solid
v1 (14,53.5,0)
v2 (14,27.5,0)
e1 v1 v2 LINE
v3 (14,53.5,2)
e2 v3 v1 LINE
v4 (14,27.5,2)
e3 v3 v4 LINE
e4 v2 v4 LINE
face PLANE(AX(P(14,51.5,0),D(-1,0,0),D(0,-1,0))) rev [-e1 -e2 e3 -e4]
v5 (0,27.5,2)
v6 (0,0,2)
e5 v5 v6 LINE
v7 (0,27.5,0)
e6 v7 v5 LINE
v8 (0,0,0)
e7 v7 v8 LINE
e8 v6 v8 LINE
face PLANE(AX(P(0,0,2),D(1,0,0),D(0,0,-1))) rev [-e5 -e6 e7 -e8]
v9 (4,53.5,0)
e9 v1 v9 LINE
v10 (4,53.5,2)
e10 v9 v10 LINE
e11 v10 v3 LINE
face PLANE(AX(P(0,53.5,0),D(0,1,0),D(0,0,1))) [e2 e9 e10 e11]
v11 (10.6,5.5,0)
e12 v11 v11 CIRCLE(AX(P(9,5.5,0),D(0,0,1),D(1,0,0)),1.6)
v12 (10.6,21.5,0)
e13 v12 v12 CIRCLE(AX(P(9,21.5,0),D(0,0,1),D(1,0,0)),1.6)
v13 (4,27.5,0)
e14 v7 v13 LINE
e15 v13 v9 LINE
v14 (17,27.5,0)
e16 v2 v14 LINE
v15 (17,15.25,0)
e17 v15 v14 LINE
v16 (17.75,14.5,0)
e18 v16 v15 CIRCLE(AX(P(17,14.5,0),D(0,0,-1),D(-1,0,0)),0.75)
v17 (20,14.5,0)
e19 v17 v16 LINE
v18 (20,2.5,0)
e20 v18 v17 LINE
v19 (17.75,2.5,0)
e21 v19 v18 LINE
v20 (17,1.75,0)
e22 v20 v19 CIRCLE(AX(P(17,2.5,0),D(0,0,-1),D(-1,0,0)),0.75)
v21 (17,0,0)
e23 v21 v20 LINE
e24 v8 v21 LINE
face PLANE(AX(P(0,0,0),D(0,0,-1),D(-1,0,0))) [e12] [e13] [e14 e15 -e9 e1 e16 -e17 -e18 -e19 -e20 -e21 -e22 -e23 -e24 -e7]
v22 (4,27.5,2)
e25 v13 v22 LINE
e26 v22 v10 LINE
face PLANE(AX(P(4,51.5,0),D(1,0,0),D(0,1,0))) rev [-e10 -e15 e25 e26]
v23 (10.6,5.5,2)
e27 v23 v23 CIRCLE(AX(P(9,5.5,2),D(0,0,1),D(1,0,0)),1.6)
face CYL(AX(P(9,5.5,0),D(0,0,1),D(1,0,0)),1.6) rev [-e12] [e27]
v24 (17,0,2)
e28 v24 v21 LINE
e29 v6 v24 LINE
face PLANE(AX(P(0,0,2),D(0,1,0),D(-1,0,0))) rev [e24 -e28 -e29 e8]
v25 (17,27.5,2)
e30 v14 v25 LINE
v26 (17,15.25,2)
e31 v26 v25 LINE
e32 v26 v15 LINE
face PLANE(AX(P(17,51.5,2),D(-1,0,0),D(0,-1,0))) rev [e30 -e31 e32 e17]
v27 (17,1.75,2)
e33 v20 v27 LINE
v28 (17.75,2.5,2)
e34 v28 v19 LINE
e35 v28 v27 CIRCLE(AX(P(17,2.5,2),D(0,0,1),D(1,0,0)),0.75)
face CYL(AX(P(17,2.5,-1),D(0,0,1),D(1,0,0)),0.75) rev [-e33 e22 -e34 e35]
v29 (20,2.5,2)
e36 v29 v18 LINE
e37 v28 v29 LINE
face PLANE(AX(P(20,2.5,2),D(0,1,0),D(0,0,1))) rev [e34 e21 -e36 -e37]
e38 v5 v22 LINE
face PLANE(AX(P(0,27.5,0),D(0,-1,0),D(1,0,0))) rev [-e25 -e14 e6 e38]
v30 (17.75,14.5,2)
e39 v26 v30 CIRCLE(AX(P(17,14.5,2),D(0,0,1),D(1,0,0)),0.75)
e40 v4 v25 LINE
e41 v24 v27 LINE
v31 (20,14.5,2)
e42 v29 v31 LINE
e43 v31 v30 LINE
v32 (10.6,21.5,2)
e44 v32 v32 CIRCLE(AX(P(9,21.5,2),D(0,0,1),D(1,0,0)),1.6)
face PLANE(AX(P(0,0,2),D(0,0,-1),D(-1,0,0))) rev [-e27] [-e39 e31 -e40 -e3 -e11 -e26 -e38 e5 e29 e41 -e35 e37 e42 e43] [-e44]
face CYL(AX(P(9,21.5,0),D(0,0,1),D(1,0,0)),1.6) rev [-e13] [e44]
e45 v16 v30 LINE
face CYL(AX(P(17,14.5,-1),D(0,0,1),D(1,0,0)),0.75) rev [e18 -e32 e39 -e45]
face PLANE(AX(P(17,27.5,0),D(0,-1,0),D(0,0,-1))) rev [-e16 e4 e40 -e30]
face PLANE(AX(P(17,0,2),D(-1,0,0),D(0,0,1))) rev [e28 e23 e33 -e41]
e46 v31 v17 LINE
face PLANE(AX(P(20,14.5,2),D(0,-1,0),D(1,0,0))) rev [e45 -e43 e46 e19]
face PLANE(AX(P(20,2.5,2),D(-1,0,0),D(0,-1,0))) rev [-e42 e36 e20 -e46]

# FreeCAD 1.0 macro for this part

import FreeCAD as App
import Part
import Sketcher

V = App.Vector

doc = App.newDocument("Part")
body = doc.addObject("PartDesign::Body", "Body")

# Sketch on XY plane
sketch1 = doc.addObject("Sketcher::SketchObject", "Sketch")
body.addObject(sketch1)
sketch1.AttachmentSupport = (doc.XY_Plane, [""])
sketch1.MapMode = "FlatFace"
sketch1.addGeometry(Part.LineSegment(V(0, 0, 0), V(17, 0, 0)), False)
sketch1.addGeometry(Part.LineSegment(V(17, 0, 0), V(17, 2.5, 0)), False)
sketch1.addGeometry(Part.LineSegment(V(17, 2.5, 0), V(20, 2.5, 0)), False)
sketch1.addGeometry(Part.LineSegment(V(20, 2.5, 0), V(20, 14.5, 0)), False)
sketch1.addGeometry(Part.LineSegment(V(20, 14.5, 0), V(17, 14.5, 0)), False)
sketch1.addGeometry(Part.LineSegment(V(17, 14.5, 0), V(17, 51.5, 0)), False)
sketch1.addGeometry(Part.LineSegment(V(17, 51.5, 0), V(0, 51.5, 0)), False)
sketch1.addGeometry(Part.LineSegment(V(0, 51.5, 0), V(0, 0, 0)), False)
sketch1.addConstraint(Sketcher.Constraint("Coincident", 0, 2, 1, 1))
sketch1.addConstraint(Sketcher.Constraint("Coincident", 1, 2, 2, 1))
sketch1.addConstraint(Sketcher.Constraint("Coincident", 2, 2, 3, 1))
sketch1.addConstraint(Sketcher.Constraint("Coincident", 3, 2, 4, 1))
sketch1.addConstraint(Sketcher.Constraint("Coincident", 4, 2, 5, 1))
sketch1.addConstraint(Sketcher.Constraint("Coincident", 5, 2, 6, 1))
sketch1.addConstraint(Sketcher.Constraint("Coincident", 6, 2, 7, 1))
sketch1.addConstraint(Sketcher.Constraint("Coincident", 7, 2, 0, 1))
sketch1.addConstraint(Sketcher.Constraint("Horizontal", 0))
sketch1.addConstraint(Sketcher.Constraint("Vertical", 1))
sketch1.addConstraint(Sketcher.Constraint("Horizontal", 2))
sketch1.addConstraint(Sketcher.Constraint("Vertical", 3))
sketch1.addConstraint(Sketcher.Constraint("Horizontal", 4))
sketch1.addConstraint(Sketcher.Constraint("Vertical", 5))
sketch1.addConstraint(Sketcher.Constraint("Horizontal", 6))
sketch1.addConstraint(Sketcher.Constraint("Vertical", 7))
sketch1.addConstraint(Sketcher.Constraint("Coincident", 7, 2, -1, 1))
sketch1.addConstraint(Sketcher.Constraint("Vertical", 1, 2, 4, 2))
sketch1.addConstraint(Sketcher.Constraint("DistanceX", 0, 1, 0, 2, 17.0))
sketch1.addConstraint(Sketcher.Constraint("DistanceX", 2, 1, 2, 2, 3.0))
sketch1.addConstraint(Sketcher.Constraint("DistanceY", 3, 1, 3, 2, 12.0))
sketch1.addConstraint(Sketcher.Constraint("DistanceY", 5, 1, 5, 2, 37.0))
sketch1.addConstraint(Sketcher.Constraint("DistanceY", 1, 1, 1, 2, 2.5))
pad1 = doc.addObject("PartDesign::Pad", "Pad")
body.addObject(pad1)
pad1.Profile = sketch1
pad1.Length = 2

# Sketch on XY plane
sketch2 = doc.addObject("Sketcher::SketchObject", "Sketch001")
body.addObject(sketch2)
sketch2.AttachmentSupport = (doc.XY_Plane, [""])
sketch2.MapMode = "FlatFace"
sketch2.AttachmentOffset = App.Placement(V(0, 0, 2), App.Rotation())
sketch2.addGeometry(Part.Circle(V(9, 5.5, 0), V(0, 0, 1), 1.6), False)
sketch2.addGeometry(Part.Circle(V(9, 21.5, 0), V(0, 0, 1), 1.6), False)
sketch2.addConstraint(Sketcher.Constraint("Equal", 0, 1))
sketch2.addConstraint(Sketcher.Constraint("Vertical", 0, 3, 1, 3))
sketch2.addConstraint(Sketcher.Constraint("Diameter", 0, 3.2))
sketch2.addConstraint(Sketcher.Constraint("DistanceX", -1, 1, 0, 3, 9.0))
sketch2.addConstraint(Sketcher.Constraint("DistanceY", 0, 3, 1, 3, 16.0))
sketch2.addConstraint(Sketcher.Constraint("DistanceY", -1, 1, 0, 3, 5.5))
pocket1 = doc.addObject("PartDesign::Pocket", "Pocket")
body.addObject(pocket1)
pocket1.Profile = sketch2
pocket1.Type = "ThroughAll"

# Sketch on XY plane
sketch3 = doc.addObject("Sketcher::SketchObject", "Sketch002")
body.addObject(sketch3)
sketch3.AttachmentSupport = (doc.XY_Plane, [""])
sketch3.MapMode = "FlatFace"
sketch3.AttachmentOffset = App.Placement(V(0, 0, 2), App.Rotation())
sketch3.addGeometry(Part.LineSegment(V(14, 51.5, 0), V(14, 27.5, 0)), False)
sketch3.addGeometry(Part.LineSegment(V(14, 27.5, 0), V(17, 27.5, 0)), False)
sketch3.addGeometry(Part.LineSegment(V(17, 27.5, 0), V(17, 51.5, 0)), False)
sketch3.addGeometry(Part.LineSegment(V(17, 51.5, 0), V(14, 51.5, 0)), False)
sketch3.addGeometry(Part.LineSegment(V(0, 51.5, 0), V(0, 27.5, 0)), False)
sketch3.addGeometry(Part.LineSegment(V(0, 27.5, 0), V(4, 27.5, 0)), False)
sketch3.addGeometry(Part.LineSegment(V(4, 27.5, 0), V(4, 51.5, 0)), False)
sketch3.addGeometry(Part.LineSegment(V(4, 51.5, 0), V(0, 51.5, 0)), False)
sketch3.addConstraint(Sketcher.Constraint("Coincident", 0, 2, 1, 1))
sketch3.addConstraint(Sketcher.Constraint("Coincident", 1, 2, 2, 1))
sketch3.addConstraint(Sketcher.Constraint("Coincident", 2, 2, 3, 1))
sketch3.addConstraint(Sketcher.Constraint("Coincident", 3, 2, 0, 1))
sketch3.addConstraint(Sketcher.Constraint("Coincident", 4, 2, 5, 1))
sketch3.addConstraint(Sketcher.Constraint("Coincident", 5, 2, 6, 1))
sketch3.addConstraint(Sketcher.Constraint("Coincident", 6, 2, 7, 1))
sketch3.addConstraint(Sketcher.Constraint("Coincident", 7, 2, 4, 1))
sketch3.addConstraint(Sketcher.Constraint("Vertical", 0))
sketch3.addConstraint(Sketcher.Constraint("Horizontal", 1))
sketch3.addConstraint(Sketcher.Constraint("Vertical", 2))
sketch3.addConstraint(Sketcher.Constraint("Horizontal", 3))
sketch3.addConstraint(Sketcher.Constraint("Vertical", 4))
sketch3.addConstraint(Sketcher.Constraint("Horizontal", 5))
sketch3.addConstraint(Sketcher.Constraint("Vertical", 6))
sketch3.addConstraint(Sketcher.Constraint("Horizontal", 7))
sketch3.addConstraint(Sketcher.Constraint("PointOnObject", 4, 2, -2))
sketch3.addConstraint(Sketcher.Constraint("Horizontal", 1, 2, 4, 2))
sketch3.addConstraint(Sketcher.Constraint("Horizontal", 3, 2, 6, 2))
sketch3.addConstraint(Sketcher.Constraint("DistanceX", 1, 1, 1, 2, 3.0))
sketch3.addConstraint(Sketcher.Constraint("DistanceX", 5, 1, 5, 2, 4.0))
sketch3.addConstraint(Sketcher.Constraint("DistanceY", 0, 2, 0, 1, 24.0))
sketch3.addConstraint(Sketcher.Constraint("DistanceX", -1, 1, 0, 2, 14.0))
sketch3.addConstraint(Sketcher.Constraint("DistanceY", -1, 1, 0, 2, 27.5))
pocket2 = doc.addObject("PartDesign::Pocket", "Pocket001")
body.addObject(pocket2)
pocket2.Profile = sketch3
pocket2.Type = "ThroughAll"

# Sketch on XZ plane
sketch4 = doc.addObject("Sketcher::SketchObject", "Sketch003")
body.addObject(sketch4)
sketch4.AttachmentSupport = (doc.XZ_Plane, [""])
sketch4.MapMode = "FlatFace"
sketch4.AttachmentOffset = App.Placement(V(0, 0, -51.5), App.Rotation())
sketch4.addGeometry(Part.LineSegment(V(4, 0, 0), V(4, 2, 0)), False)
sketch4.addGeometry(Part.LineSegment(V(4, 2, 0), V(14, 2, 0)), False)
sketch4.addGeometry(Part.LineSegment(V(14, 2, 0), V(14, 0, 0)), False)
sketch4.addGeometry(Part.LineSegment(V(14, 0, 0), V(4, 0, 0)), False)
sketch4.addConstraint(Sketcher.Constraint("Coincident", 0, 2, 1, 1))
sketch4.addConstraint(Sketcher.Constraint("Coincident", 1, 2, 2, 1))
sketch4.addConstraint(Sketcher.Constraint("Coincident", 2, 2, 3, 1))
sketch4.addConstraint(Sketcher.Constraint("Coincident", 3, 2, 0, 1))
sketch4.addConstraint(Sketcher.Constraint("Vertical", 0))
sketch4.addConstraint(Sketcher.Constraint("Horizontal", 1))
sketch4.addConstraint(Sketcher.Constraint("Vertical", 2))
sketch4.addConstraint(Sketcher.Constraint("Horizontal", 3))
sketch4.addConstraint(Sketcher.Constraint("PointOnObject", 2, 2, -1))
sketch4.addConstraint(Sketcher.Constraint("DistanceX", 1, 1, 1, 2, 10.0))
sketch4.addConstraint(Sketcher.Constraint("DistanceY", 0, 1, 0, 2, 2.0))
sketch4.addConstraint(Sketcher.Constraint("DistanceX", -1, 1, 0, 2, 4.0))
pad2 = doc.addObject("PartDesign::Pad", "Pad001")
body.addObject(pad2)
pad2.Profile = sketch4
pad2.Length = 2
pad2.Reversed = True

# Sketch on XY plane
sketch5 = doc.addObject("Sketcher::SketchObject", "Sketch004")
body.addObject(sketch5)
sketch5.AttachmentSupport = (doc.XY_Plane, [""])
sketch5.MapMode = "FlatFace"
sketch5.AttachmentOffset = App.Placement(V(0, 0, 2), App.Rotation())
sketch5.addGeometry(Part.Circle(V(17, 14.5, 0), V(0, 0, 1), 0.75), False)
sketch5.addGeometry(Part.Circle(V(17, 2.5, 0), V(0, 0, 1), 0.75), False)
sketch5.addConstraint(Sketcher.Constraint("Equal", 0, 1))
sketch5.addConstraint(Sketcher.Constraint("Vertical", 0, 3, 1, 3))
sketch5.addConstraint(Sketcher.Constraint("Diameter", 0, 1.5))
sketch5.addConstraint(Sketcher.Constraint("DistanceX", -1, 1, 0, 3, 17.0))
sketch5.addConstraint(Sketcher.Constraint("DistanceY", 1, 3, 0, 3, 12.0))
sketch5.addConstraint(Sketcher.Constraint("DistanceY", -1, 1, 0, 3, 14.5))
pocket3 = doc.addObject("PartDesign::Pocket", "Pocket002")
body.addObject(pocket3)
pocket3.Profile = sketch5
pocket3.Length = 3

doc.recompute()
